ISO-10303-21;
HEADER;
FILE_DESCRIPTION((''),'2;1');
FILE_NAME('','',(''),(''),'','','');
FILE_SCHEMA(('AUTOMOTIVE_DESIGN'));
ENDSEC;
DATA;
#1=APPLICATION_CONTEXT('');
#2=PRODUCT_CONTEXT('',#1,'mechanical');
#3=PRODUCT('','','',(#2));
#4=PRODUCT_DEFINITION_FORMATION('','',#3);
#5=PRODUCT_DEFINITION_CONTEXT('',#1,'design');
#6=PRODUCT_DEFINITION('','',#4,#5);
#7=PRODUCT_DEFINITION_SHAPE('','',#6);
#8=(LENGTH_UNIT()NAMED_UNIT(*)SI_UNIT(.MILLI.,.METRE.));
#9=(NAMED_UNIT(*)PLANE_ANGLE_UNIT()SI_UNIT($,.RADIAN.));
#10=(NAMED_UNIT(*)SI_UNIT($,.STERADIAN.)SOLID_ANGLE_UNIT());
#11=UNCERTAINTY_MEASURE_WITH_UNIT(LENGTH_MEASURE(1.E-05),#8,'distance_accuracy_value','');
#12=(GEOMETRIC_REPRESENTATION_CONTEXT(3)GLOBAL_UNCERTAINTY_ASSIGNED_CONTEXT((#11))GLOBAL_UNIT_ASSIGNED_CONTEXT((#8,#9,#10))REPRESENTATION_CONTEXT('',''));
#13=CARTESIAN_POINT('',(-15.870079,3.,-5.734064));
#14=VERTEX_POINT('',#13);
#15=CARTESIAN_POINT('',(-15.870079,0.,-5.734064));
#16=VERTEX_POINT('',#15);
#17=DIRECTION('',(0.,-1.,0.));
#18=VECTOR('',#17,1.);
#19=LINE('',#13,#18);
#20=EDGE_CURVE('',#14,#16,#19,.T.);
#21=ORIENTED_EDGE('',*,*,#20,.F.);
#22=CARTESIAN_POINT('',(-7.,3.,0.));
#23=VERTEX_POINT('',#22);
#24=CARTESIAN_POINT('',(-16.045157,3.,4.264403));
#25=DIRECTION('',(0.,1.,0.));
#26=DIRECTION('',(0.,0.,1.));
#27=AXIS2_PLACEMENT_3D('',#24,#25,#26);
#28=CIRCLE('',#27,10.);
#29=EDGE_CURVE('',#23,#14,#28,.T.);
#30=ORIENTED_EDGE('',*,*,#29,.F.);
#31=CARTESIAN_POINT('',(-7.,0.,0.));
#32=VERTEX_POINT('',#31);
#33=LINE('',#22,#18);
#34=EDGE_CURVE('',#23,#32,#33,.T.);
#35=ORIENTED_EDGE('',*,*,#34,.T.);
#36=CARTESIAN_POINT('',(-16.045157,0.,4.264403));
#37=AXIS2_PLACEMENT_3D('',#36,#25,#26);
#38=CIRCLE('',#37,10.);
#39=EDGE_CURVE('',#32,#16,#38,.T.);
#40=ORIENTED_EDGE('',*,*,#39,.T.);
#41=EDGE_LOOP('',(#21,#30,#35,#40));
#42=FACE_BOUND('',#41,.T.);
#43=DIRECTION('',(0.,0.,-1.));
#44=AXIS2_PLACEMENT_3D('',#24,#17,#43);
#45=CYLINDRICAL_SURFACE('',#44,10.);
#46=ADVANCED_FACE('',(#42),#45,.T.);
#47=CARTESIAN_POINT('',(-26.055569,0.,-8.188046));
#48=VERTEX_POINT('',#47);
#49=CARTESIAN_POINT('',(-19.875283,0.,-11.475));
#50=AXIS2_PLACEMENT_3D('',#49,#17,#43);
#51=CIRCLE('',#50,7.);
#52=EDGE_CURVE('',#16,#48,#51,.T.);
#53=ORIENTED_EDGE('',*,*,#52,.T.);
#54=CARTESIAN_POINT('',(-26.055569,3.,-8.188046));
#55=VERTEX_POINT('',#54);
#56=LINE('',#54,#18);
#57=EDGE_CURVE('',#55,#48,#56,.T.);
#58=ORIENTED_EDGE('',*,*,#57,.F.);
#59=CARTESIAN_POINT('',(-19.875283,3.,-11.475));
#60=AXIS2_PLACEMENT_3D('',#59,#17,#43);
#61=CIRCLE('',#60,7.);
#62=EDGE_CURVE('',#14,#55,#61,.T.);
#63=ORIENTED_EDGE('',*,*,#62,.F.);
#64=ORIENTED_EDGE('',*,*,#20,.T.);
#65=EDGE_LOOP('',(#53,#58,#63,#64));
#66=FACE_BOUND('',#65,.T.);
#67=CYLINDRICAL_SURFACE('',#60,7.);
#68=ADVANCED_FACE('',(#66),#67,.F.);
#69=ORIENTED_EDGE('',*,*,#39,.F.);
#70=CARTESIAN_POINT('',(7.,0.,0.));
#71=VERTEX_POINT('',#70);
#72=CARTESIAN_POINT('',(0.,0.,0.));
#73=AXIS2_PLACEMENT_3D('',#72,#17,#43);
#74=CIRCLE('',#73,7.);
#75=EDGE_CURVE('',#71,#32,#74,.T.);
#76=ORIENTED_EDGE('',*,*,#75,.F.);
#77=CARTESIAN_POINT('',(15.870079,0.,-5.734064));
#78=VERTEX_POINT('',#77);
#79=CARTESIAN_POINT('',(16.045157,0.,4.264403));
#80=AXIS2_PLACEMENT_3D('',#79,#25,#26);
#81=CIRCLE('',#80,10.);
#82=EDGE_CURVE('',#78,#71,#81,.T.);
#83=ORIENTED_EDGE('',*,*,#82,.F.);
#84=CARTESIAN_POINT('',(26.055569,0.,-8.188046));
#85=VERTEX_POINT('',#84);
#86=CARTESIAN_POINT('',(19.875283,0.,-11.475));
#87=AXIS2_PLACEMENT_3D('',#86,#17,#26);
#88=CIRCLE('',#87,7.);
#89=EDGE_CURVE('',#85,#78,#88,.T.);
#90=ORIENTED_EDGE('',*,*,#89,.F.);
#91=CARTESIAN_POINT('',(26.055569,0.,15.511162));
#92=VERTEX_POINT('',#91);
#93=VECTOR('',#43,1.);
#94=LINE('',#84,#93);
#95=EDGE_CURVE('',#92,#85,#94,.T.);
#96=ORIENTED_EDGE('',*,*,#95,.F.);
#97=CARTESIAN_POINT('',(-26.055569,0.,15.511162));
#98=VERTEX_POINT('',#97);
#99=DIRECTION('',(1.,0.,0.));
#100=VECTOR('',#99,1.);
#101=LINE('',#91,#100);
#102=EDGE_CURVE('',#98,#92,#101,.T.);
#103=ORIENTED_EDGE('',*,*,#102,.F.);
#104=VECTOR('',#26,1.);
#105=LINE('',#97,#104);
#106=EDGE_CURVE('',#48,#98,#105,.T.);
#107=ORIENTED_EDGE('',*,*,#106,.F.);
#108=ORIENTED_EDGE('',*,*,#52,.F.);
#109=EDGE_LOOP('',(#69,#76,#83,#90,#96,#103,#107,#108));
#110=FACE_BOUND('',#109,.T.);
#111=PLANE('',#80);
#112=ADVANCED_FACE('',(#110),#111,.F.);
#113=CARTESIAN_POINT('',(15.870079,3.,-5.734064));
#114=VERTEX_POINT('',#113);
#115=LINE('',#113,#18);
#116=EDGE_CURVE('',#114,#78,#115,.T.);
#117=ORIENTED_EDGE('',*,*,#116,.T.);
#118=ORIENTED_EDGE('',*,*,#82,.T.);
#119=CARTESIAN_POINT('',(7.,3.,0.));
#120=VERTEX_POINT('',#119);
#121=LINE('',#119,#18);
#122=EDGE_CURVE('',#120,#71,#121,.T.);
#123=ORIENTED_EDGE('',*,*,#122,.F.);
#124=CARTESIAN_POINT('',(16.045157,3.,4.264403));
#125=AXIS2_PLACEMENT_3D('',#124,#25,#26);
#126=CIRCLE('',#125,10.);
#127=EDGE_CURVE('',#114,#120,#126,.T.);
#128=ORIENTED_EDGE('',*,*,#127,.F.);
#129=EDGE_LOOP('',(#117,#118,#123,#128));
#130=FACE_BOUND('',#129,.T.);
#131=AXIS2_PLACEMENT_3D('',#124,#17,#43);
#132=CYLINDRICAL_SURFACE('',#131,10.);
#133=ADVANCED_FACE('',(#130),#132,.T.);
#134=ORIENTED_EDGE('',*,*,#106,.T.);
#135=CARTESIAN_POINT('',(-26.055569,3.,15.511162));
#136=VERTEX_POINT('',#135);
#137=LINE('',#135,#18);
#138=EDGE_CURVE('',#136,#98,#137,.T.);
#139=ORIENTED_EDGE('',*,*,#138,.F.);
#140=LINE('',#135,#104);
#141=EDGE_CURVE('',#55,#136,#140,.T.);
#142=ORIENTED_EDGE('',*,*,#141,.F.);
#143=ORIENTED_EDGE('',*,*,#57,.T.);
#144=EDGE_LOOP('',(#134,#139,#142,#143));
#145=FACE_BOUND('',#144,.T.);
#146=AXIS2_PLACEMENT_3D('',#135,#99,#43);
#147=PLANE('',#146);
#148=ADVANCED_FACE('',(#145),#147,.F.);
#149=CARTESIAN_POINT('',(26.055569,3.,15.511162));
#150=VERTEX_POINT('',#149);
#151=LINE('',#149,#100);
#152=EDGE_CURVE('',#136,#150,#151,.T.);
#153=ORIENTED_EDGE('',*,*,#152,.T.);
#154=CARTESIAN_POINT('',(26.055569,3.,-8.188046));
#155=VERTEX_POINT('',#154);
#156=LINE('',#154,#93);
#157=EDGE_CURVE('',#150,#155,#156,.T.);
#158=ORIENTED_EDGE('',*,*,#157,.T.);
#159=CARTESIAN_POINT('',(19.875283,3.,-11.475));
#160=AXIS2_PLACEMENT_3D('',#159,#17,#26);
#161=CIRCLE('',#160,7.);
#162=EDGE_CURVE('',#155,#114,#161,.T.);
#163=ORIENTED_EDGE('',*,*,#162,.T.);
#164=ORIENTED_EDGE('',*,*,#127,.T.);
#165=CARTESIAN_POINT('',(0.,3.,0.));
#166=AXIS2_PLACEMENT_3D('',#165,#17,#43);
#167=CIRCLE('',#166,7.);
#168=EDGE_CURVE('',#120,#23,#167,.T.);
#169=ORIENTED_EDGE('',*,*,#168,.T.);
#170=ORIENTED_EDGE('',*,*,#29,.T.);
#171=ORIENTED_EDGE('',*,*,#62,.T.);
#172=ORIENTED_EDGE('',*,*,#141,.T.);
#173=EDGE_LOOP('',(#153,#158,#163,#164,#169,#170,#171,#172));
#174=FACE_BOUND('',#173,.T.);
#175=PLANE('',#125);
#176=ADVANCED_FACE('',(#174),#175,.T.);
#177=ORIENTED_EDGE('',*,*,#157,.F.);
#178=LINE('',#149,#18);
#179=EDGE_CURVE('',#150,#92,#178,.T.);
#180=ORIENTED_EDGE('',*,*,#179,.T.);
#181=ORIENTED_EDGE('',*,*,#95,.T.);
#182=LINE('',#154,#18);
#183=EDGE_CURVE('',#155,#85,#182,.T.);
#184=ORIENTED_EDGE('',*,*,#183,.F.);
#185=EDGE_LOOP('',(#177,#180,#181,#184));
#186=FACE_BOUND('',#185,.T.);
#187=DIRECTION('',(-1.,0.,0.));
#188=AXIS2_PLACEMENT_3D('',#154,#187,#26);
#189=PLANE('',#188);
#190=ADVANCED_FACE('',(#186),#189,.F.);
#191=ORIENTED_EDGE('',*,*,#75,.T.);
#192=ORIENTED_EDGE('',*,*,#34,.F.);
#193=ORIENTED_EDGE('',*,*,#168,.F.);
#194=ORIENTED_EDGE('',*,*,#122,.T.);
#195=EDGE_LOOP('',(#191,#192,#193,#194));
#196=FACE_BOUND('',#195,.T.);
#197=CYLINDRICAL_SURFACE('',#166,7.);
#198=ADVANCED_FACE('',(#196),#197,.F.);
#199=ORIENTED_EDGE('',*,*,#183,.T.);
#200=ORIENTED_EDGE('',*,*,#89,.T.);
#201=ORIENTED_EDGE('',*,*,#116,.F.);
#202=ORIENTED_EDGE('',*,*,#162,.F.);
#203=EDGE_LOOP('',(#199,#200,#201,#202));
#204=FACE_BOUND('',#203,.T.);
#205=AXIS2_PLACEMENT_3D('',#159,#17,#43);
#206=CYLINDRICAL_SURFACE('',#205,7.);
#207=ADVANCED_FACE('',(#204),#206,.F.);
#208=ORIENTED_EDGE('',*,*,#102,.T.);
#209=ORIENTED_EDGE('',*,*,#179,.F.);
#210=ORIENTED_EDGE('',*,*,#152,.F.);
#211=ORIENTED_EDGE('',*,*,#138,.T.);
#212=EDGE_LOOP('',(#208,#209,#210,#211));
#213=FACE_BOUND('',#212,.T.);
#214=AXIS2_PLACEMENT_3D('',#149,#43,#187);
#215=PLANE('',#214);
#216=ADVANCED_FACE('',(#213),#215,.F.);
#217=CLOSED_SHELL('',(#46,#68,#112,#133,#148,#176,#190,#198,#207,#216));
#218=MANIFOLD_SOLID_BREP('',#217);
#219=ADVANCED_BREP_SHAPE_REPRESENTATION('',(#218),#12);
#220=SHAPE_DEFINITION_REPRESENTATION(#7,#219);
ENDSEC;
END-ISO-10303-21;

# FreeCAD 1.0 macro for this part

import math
import FreeCAD as App
import Part
import Sketcher
from FreeCAD import Vector
Q = App.Units.Quantity

doc = App.newDocument("Part")
params = doc.addObject("Spreadsheet::Sheet", "Params")
for row, (alias, value) in enumerate([
    ("sketch1_radius", "7 mm"),
    ("sketch1_radius2", "10 mm"),
    ("pad1_length", "3 mm"),
], start=1):
    params.set(f"A{row}", alias)
    params.set(f"B{row}", "=" + value)
    params.setAlias(f"B{row}", alias)

body = doc.addObject("PartDesign::Body", "Body")

# Sketch on XZ plane
sketch1 = body.newObject("Sketcher::SketchObject", "Sketch")
sketch1.AttachmentSupport = (doc.getObject("XZ_Plane"), [""])
sketch1.MapMode = "FlatFace"
sketch1.addGeometry([
    Part.LineSegment(Vector(26.055569, 15.511162, 0), Vector(26.055569, -8.188046, 0)),  # 0
    Part.ArcOfCircle(Part.Circle(Vector(19.875283, -11.475, 0), Vector(0, 0, 1), 7), math.radians(28.00605), math.radians(124.901823)),  # 1
    Part.ArcOfCircle(Part.Circle(Vector(16.045157, 4.264403, 0), Vector(0, 0, 1), 10), math.radians(-154.758136), math.radians(-91.003174)),  # 2
    Part.ArcOfCircle(Part.Circle(Vector(0, 0, 0), Vector(0, 0, 1), 7), math.radians(0), math.radians(180)),  # 3
    Part.ArcOfCircle(Part.Circle(Vector(-16.045157, 4.264403, 0), Vector(0, 0, 1), 10), math.radians(-88.996826), math.radians(-25.241864)),  # 4
    Part.ArcOfCircle(Part.Circle(Vector(-19.875283, -11.475, 0), Vector(0, 0, 1), 7), math.radians(55.098177), math.radians(151.99395)),  # 5
    Part.LineSegment(Vector(-26.055569, -8.188046, 0), Vector(-26.055569, 15.511162, 0)),  # 6
    Part.LineSegment(Vector(-26.055569, 15.511162, 0), Vector(26.055569, 15.511162, 0)),  # 7
], False)
sketch1.addConstraint([
    Sketcher.Constraint("Coincident", 0, 2, 1, 1),
    Sketcher.Constraint("Coincident", 1, 2, 2, 2),
    Sketcher.Constraint("Coincident", 2, 1, 3, 1),
    Sketcher.Constraint("Coincident", 3, 2, 4, 2),
    Sketcher.Constraint("Coincident", 4, 1, 5, 1),
    Sketcher.Constraint("Coincident", 5, 2, 6, 1),
    Sketcher.Constraint("Coincident", 6, 2, 7, 1),
    Sketcher.Constraint("Coincident", 7, 2, 0, 1),
    Sketcher.Constraint("Vertical", 0),
    Sketcher.Constraint("Vertical", 6),
    Sketcher.Constraint("Horizontal", 7),
    Sketcher.Constraint("Coincident", 3, 3, -1, 1),
    Sketcher.Constraint("Equal", 1, 3),
    Sketcher.Constraint("Equal", 2, 4),
    Sketcher.Constraint("Equal", 3, 5),
    Sketcher.Constraint("Symmetric", 2, 3, 4, 3, -2),
    Sketcher.Constraint("Symmetric", 1, 3, 5, 3, -2),
    Sketcher.Constraint("PointOnObject", 2, 1, -1),
    Sketcher.Constraint("Horizontal", 0, 2, 5, 2),
    Sketcher.Constraint("Radius", 1, Q("7 mm")),
    Sketcher.Constraint("Radius", 2, Q("10 mm")),
    Sketcher.Constraint("DistanceY", 1, 3, -1, 1, Q("11.475 mm")),
    Sketcher.Constraint("DistanceX", 7, 1, 7, 2, Q("52.111138 mm")),
    Sketcher.Constraint("DistanceY", 0, 2, 0, 1, Q("23.699209 mm")),
    Sketcher.Constraint("DistanceX", -1, 1, 1, 2, Q("15.870079 mm")),
    Sketcher.Constraint("DistanceX", 4, 3, 1, 3, Q("35.92044 mm")),
])
sketch1.setExpression("Constraints[19]", "Params.sketch1_radius")
sketch1.setExpression("Constraints[20]", "Params.sketch1_radius2")
pad1 = body.newObject("PartDesign::Pad", "Pad")
pad1.Profile = sketch1
pad1.setExpression("Length", "Params.pad1_length")
pad1.Reversed = True

doc.recompute()
